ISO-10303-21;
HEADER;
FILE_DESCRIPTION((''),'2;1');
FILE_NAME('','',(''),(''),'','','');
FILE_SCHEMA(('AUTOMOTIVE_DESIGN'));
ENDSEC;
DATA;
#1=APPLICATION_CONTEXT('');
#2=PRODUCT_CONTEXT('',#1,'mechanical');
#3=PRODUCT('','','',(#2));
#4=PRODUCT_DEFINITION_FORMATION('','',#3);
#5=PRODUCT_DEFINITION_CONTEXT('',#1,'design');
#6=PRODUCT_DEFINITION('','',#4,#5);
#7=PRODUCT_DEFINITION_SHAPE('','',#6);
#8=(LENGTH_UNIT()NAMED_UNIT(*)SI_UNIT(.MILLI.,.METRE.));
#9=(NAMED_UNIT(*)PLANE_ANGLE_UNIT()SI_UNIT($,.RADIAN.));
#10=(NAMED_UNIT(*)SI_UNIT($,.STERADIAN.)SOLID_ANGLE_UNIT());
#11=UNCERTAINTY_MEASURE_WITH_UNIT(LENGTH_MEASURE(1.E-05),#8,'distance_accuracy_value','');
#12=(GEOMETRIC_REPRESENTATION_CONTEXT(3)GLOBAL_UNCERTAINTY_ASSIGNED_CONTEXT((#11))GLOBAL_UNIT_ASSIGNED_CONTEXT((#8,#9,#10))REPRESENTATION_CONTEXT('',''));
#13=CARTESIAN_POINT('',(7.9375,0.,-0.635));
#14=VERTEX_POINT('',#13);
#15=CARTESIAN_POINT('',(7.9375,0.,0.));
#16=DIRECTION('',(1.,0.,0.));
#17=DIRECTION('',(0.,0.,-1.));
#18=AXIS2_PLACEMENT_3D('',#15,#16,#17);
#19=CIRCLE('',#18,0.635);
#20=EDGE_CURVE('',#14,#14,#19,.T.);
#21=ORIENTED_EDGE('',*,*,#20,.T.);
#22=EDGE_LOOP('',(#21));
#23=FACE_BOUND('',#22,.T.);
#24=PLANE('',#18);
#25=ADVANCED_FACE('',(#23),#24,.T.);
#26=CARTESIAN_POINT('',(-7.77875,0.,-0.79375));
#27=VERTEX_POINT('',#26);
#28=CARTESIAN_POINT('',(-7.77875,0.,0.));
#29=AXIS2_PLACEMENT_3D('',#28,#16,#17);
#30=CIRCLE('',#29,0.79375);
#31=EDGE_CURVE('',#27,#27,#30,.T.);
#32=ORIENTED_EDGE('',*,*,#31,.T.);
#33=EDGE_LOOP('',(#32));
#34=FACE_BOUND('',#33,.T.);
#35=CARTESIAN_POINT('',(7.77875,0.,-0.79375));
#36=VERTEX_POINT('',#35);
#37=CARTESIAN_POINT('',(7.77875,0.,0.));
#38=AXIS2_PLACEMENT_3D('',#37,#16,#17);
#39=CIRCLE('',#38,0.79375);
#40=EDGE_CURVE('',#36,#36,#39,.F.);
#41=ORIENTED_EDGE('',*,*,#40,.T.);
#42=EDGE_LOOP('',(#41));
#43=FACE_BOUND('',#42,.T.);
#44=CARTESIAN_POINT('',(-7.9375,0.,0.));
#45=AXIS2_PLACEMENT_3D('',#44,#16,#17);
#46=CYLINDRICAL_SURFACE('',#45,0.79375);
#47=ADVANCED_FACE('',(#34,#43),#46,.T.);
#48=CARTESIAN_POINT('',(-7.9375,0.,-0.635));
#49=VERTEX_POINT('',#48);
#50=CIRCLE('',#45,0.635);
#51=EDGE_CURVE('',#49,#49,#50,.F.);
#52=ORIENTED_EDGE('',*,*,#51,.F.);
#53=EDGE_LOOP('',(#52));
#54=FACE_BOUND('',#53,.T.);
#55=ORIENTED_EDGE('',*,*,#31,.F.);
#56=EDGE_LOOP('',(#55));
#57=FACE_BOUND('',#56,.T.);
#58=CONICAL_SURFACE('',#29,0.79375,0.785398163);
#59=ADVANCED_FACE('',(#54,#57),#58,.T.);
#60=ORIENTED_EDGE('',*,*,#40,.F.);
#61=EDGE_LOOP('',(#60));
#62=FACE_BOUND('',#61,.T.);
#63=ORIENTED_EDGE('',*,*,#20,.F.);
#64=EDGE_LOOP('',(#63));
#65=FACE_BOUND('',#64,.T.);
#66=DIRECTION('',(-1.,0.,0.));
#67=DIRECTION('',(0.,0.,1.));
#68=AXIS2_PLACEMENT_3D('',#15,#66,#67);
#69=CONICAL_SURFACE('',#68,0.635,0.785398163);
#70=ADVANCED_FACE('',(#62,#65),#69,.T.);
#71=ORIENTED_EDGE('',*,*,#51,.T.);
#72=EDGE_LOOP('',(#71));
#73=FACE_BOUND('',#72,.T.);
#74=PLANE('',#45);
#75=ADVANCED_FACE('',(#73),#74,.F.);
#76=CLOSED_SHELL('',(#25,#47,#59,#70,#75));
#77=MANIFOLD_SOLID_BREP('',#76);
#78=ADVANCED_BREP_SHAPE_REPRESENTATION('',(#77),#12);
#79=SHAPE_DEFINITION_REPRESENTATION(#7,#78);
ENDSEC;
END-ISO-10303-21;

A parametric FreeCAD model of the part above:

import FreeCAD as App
import Part
import Sketcher

V = App.Vector
Q = App.Units.Quantity


def edges_at(feature, points):
    """Names of the edges that pass closest to the given points."""
    edges = feature.Shape.Edges
    near = lambda p: min(range(len(edges)), key=lambda i: edges[i].distToShape(Part.Vertex(*p))[0])
    return sorted({f"Edge{near(p) + 1}" for p in points})

doc = App.newDocument("Part")
params = doc.addObject("Spreadsheet::Sheet", "Params")
for row, (alias, value) in enumerate([
    ("sketch1_diameter", "0.0625 in"),
    ("pad1_length", "0.3125 in"),
    ("pad1_length2", "0.3125 in"),
    ("chamfer_size", "0.15875 mm"),
], start=1):
    params.set(f"A{row}", alias)
    params.set(f"B{row}", "=" + value)
    params.setAlias(f"B{row}", alias)

body = doc.addObject("PartDesign::Body", "Body")

# Sketch on YZ plane
sketch1 = body.newObject("Sketcher::SketchObject", "Sketch")
sketch1.AttachmentSupport = (doc.getObject("YZ_Plane"), [""])
sketch1.MapMode = "FlatFace"
sketch1.addGeometry(Part.Circle(V(0, 0, 0), V(0, 0, 1), 0.8), False)
sketch1.addConstraint([
    Sketcher.Constraint("Coincident", 0, 3, -1, 1),
    Sketcher.Constraint("Diameter", 0, Q("0.0625 in")),
])
sketch1.setExpression("Constraints[1]", "Params.sketch1_diameter")
pad1 = body.newObject("PartDesign::Pad", "Pad")
pad1.Profile = sketch1
pad1.Type = "TwoLengths"
pad1.setExpression("Length", "Params.pad1_length")
pad1.setExpression("Length2", "Params.pad1_length2")
doc.recompute()

chamfer = body.newObject("PartDesign::Chamfer", "Chamfer")
chamfer.Base = (pad1, edges_at(pad1, [(-7.938, 0, 0.794), (7.938, 0, 0.794)]))
chamfer.setExpression("Size", "Params.chamfer_size")

doc.recompute()
